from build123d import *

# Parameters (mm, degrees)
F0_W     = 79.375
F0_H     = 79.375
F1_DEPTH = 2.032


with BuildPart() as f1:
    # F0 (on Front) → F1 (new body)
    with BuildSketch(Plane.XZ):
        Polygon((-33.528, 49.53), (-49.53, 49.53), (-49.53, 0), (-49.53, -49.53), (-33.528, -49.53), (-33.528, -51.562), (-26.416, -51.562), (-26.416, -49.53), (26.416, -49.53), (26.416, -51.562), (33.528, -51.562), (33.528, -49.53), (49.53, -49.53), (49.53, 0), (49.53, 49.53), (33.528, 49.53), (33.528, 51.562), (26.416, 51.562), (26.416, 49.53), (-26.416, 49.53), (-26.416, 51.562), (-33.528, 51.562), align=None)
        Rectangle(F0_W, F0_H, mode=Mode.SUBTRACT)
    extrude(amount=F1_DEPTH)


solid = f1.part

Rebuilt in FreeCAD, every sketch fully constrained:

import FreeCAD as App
import Part
import Sketcher
Q = App.Units.Quantity

doc = App.newDocument("Part")
body = doc.addObject("PartDesign::Body", "Body")

# Sketch on XZ plane
sketch1 = body.newObject("Sketcher::SketchObject", "Sketch")
sketch1.AttachmentSupport = (doc.getObject("XZ_Plane"), [""])
sketch1.MapMode = "FlatFace"
sketch1.addGeometry(Part.LineSegment(App.Vector(-33.528, 49.53, 0), App.Vector(-49.53, 49.53, 0)), False)
sketch1.addGeometry(Part.LineSegment(App.Vector(-49.53, 49.53, 0), App.Vector(-49.53, -49.53, 0)), False)
sketch1.addGeometry(Part.LineSegment(App.Vector(-49.53, -49.53, 0), App.Vector(-33.528, -49.53, 0)), False)
sketch1.addGeometry(Part.LineSegment(App.Vector(-33.528, -49.53, 0), App.Vector(-33.528, -51.562, 0)), False)
sketch1.addGeometry(Part.LineSegment(App.Vector(-33.528, -51.562, 0), App.Vector(-26.416, -51.562, 0)), False)
sketch1.addGeometry(Part.LineSegment(App.Vector(-26.416, -51.562, 0), App.Vector(-26.416, -49.53, 0)), False)
sketch1.addGeometry(Part.LineSegment(App.Vector(-26.416, -49.53, 0), App.Vector(26.416, -49.53, 0)), False)
sketch1.addGeometry(Part.LineSegment(App.Vector(26.416, -49.53, 0), App.Vector(26.416, -51.562, 0)), False)
sketch1.addGeometry(Part.LineSegment(App.Vector(26.416, -51.562, 0), App.Vector(33.528, -51.562, 0)), False)
sketch1.addGeometry(Part.LineSegment(App.Vector(33.528, -51.562, 0), App.Vector(33.528, -49.53, 0)), False)
sketch1.addGeometry(Part.LineSegment(App.Vector(33.528, -49.53, 0), App.Vector(49.53, -49.53, 0)), False)
sketch1.addGeometry(Part.LineSegment(App.Vector(49.53, -49.53, 0), App.Vector(49.53, 49.53, 0)), False)
sketch1.addGeometry(Part.LineSegment(App.Vector(49.53, 49.53, 0), App.Vector(33.528, 49.53, 0)), False)
sketch1.addGeometry(Part.LineSegment(App.Vector(33.528, 49.53, 0), App.Vector(33.528, 51.562, 0)), False)
sketch1.addGeometry(Part.LineSegment(App.Vector(33.528, 51.562, 0), App.Vector(26.416, 51.562, 0)), False)
sketch1.addGeometry(Part.LineSegment(App.Vector(26.416, 51.562, 0), App.Vector(26.416, 49.53, 0)), False)
sketch1.addGeometry(Part.LineSegment(App.Vector(26.416, 49.53, 0), App.Vector(-26.416, 49.53, 0)), False)
sketch1.addGeometry(Part.LineSegment(App.Vector(-26.416, 49.53, 0), App.Vector(-26.416, 51.562, 0)), False)
sketch1.addGeometry(Part.LineSegment(App.Vector(-26.416, 51.562, 0), App.Vector(-33.528, 51.562, 0)), False)
sketch1.addGeometry(Part.LineSegment(App.Vector(-33.528, 51.562, 0), App.Vector(-33.528, 49.53, 0)), False)
sketch1.addGeometry(Part.LineSegment(App.Vector(39.6875, -39.6875, 0), App.Vector(-39.6875, -39.6875, 0)), False)
sketch1.addGeometry(Part.LineSegment(App.Vector(-39.6875, -39.6875, 0), App.Vector(-39.6875, 39.6875, 0)), False)
sketch1.addGeometry(Part.LineSegment(App.Vector(-39.6875, 39.6875, 0), App.Vector(39.6875, 39.6875, 0)), False)
sketch1.addGeometry(Part.LineSegment(App.Vector(39.6875, 39.6875, 0), App.Vector(39.6875, -39.6875, 0)), False)
sketch1.addConstraint(Sketcher.Constraint("Coincident", 0, 2, 1, 1))
sketch1.addConstraint(Sketcher.Constraint("Coincident", 1, 2, 2, 1))
sketch1.addConstraint(Sketcher.Constraint("Coincident", 2, 2, 3, 1))
sketch1.addConstraint(Sketcher.Constraint("Coincident", 3, 2, 4, 1))
sketch1.addConstraint(Sketcher.Constraint("Coincident", 4, 2, 5, 1))
sketch1.addConstraint(Sketcher.Constraint("Coincident", 5, 2, 6, 1))
sketch1.addConstraint(Sketcher.Constraint("Coincident", 6, 2, 7, 1))
sketch1.addConstraint(Sketcher.Constraint("Coincident", 7, 2, 8, 1))
sketch1.addConstraint(Sketcher.Constraint("Coincident", 8, 2, 9, 1))
sketch1.addConstraint(Sketcher.Constraint("Coincident", 9, 2, 10, 1))
sketch1.addConstraint(Sketcher.Constraint("Coincident", 10, 2, 11, 1))
sketch1.addConstraint(Sketcher.Constraint("Coincident", 11, 2, 12, 1))
sketch1.addConstraint(Sketcher.Constraint("Coincident", 12, 2, 13, 1))
sketch1.addConstraint(Sketcher.Constraint("Coincident", 13, 2, 14, 1))
sketch1.addConstraint(Sketcher.Constraint("Coincident", 14, 2, 15, 1))
sketch1.addConstraint(Sketcher.Constraint("Coincident", 15, 2, 16, 1))
sketch1.addConstraint(Sketcher.Constraint("Coincident", 16, 2, 17, 1))
sketch1.addConstraint(Sketcher.Constraint("Coincident", 17, 2, 18, 1))
sketch1.addConstraint(Sketcher.Constraint("Coincident", 18, 2, 19, 1))
sketch1.addConstraint(Sketcher.Constraint("Coincident", 19, 2, 0, 1))
sketch1.addConstraint(Sketcher.Constraint("Coincident", 20, 2, 21, 1))
sketch1.addConstraint(Sketcher.Constraint("Coincident", 21, 2, 22, 1))
sketch1.addConstraint(Sketcher.Constraint("Coincident", 22, 2, 23, 1))
sketch1.addConstraint(Sketcher.Constraint("Coincident", 23, 2, 20, 1))
sketch1.addConstraint(Sketcher.Constraint("Horizontal", 0))
sketch1.addConstraint(Sketcher.Constraint("Vertical", 1))
sketch1.addConstraint(Sketcher.Constraint("Horizontal", 2))
sketch1.addConstraint(Sketcher.Constraint("Vertical", 3))
sketch1.addConstraint(Sketcher.Constraint("Horizontal", 4))
sketch1.addConstraint(Sketcher.Constraint("Vertical", 5))
sketch1.addConstraint(Sketcher.Constraint("Horizontal", 6))
sketch1.addConstraint(Sketcher.Constraint("Vertical", 7))
sketch1.addConstraint(Sketcher.Constraint("Horizontal", 8))
sketch1.addConstraint(Sketcher.Constraint("Vertical", 9))
sketch1.addConstraint(Sketcher.Constraint("Horizontal", 10))
sketch1.addConstraint(Sketcher.Constraint("Vertical", 11))
sketch1.addConstraint(Sketcher.Constraint("Horizontal", 12))
sketch1.addConstraint(Sketcher.Constraint("Vertical", 13))
sketch1.addConstraint(Sketcher.Constraint("Horizontal", 14))
sketch1.addConstraint(Sketcher.Constraint("Vertical", 15))
sketch1.addConstraint(Sketcher.Constraint("Horizontal", 16))
sketch1.addConstraint(Sketcher.Constraint("Vertical", 17))
sketch1.addConstraint(Sketcher.Constraint("Horizontal", 18))
sketch1.addConstraint(Sketcher.Constraint("Vertical", 19))
sketch1.addConstraint(Sketcher.Constraint("Horizontal", 20))
sketch1.addConstraint(Sketcher.Constraint("Vertical", 21))
sketch1.addConstraint(Sketcher.Constraint("Horizontal", 22))
sketch1.addConstraint(Sketcher.Constraint("Vertical", 23))
sketch1.addConstraint(Sketcher.Constraint("Symmetric", 0, 2, 10, 2, -1, 1))
sketch1.addConstraint(Sketcher.Constraint("Symmetric", 2, 2, 12, 2, -1, 1))
sketch1.addConstraint(Sketcher.Constraint("Symmetric", 4, 2, 14, 2, -1, 1))
sketch1.addConstraint(Sketcher.Constraint("Symmetric", 6, 2, 16, 2, -1, 1))
sketch1.addConstraint(Sketcher.Constraint("Symmetric", 8, 2, 18, 2, -1, 1))
sketch1.addConstraint(Sketcher.Constraint("Symmetric", 20, 2, 22, 2, -1, 1))
sketch1.addConstraint(Sketcher.Constraint("Symmetric", 4, 2, 7, 2, -2))
sketch1.addConstraint(Sketcher.Constraint("Symmetric", 2, 2, 9, 2, -2))
sketch1.addConstraint(Sketcher.Constraint("Horizontal", 2, 2, 5, 2))
sketch1.addConstraint(Sketcher.Constraint("Equal", 22, 21))
sketch1.addConstraint(Sketcher.Constraint("DistanceY", 1, 2, 1, 1, Q("3.9 in")))
sketch1.addConstraint(Sketcher.Constraint("DistanceX", 0, 2, 0, 1, Q("0.63 in")))
sketch1.addConstraint(Sketcher.Constraint("DistanceX", 4, 1, 4, 2, Q("0.28 in")))
sketch1.addConstraint(Sketcher.Constraint("DistanceX", 6, 1, 6, 2, Q("2.08 in")))
sketch1.addConstraint(Sketcher.Constraint("DistanceY", 3, 2, 3, 1, Q("0.08 in")))
sketch1.addConstraint(Sketcher.Constraint("DistanceX", 20, 2, 20, 1, Q("3.125 in")))
pad1 = body.newObject("PartDesign::Pad", "Pad")
pad1.Profile = sketch1
pad1.Length = Q("0.08 in")

doc.recompute()
